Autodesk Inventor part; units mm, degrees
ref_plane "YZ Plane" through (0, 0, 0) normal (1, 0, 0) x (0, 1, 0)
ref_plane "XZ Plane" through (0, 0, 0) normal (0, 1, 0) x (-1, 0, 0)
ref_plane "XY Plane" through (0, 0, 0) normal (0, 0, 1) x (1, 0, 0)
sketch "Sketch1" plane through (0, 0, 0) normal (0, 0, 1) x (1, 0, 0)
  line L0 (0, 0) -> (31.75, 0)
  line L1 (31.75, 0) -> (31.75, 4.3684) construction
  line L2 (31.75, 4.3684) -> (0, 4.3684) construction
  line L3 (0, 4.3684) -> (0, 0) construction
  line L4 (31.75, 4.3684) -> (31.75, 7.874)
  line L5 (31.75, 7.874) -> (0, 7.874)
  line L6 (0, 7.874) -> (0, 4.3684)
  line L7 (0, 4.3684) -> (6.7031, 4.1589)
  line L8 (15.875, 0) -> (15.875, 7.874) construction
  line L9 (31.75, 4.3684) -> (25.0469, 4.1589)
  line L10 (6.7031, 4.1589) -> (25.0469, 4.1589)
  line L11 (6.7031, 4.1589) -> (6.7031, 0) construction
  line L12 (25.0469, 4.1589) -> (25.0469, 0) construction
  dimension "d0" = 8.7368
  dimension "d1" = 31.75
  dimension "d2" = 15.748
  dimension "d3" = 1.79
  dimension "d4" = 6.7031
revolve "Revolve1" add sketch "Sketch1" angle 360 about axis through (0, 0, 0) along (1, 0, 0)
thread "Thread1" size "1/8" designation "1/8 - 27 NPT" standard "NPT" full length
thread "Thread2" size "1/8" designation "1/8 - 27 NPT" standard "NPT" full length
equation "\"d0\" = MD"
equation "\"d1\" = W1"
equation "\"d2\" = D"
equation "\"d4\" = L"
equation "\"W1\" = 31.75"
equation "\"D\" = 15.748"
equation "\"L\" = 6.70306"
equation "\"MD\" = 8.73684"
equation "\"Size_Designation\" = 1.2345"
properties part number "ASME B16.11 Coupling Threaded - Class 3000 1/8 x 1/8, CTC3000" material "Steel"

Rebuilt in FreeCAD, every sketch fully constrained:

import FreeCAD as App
import Part
import Sketcher
Q = App.Units.Quantity

doc = App.newDocument("Part")
body = doc.addObject("PartDesign::Body", "Body")

# Sketch on XY plane
sketch1 = body.newObject("Sketcher::SketchObject", "Sketch")
sketch1.AttachmentSupport = (doc.getObject("XY_Plane"), [""])
sketch1.MapMode = "FlatFace"
sketch1.addGeometry(Part.LineSegment(App.Vector(25, 4.2, 0), App.Vector(31.8, 4.4, 0)), False)
sketch1.addGeometry(Part.LineSegment(App.Vector(31.8, 4.4, 0), App.Vector(31.8, 7.9, 0)), False)
sketch1.addGeometry(Part.LineSegment(App.Vector(31.8, 7.9, 0), App.Vector(0, 7.9, 0)), False)
sketch1.addGeometry(Part.LineSegment(App.Vector(0, 7.9, 0), App.Vector(0, 4.4, 0)), False)
sketch1.addGeometry(Part.LineSegment(App.Vector(0, 4.4, 0), App.Vector(6.7, 4.2, 0)), False)
sketch1.addGeometry(Part.LineSegment(App.Vector(6.7, 4.2, 0), App.Vector(25, 4.2, 0)), False)
sketch1.addConstraint(Sketcher.Constraint("Coincident", 0, 2, 1, 1))
sketch1.addConstraint(Sketcher.Constraint("Coincident", 1, 2, 2, 1))
sketch1.addConstraint(Sketcher.Constraint("Coincident", 2, 2, 3, 1))
sketch1.addConstraint(Sketcher.Constraint("Coincident", 3, 2, 4, 1))
sketch1.addConstraint(Sketcher.Constraint("Coincident", 4, 2, 5, 1))
sketch1.addConstraint(Sketcher.Constraint("Coincident", 5, 2, 0, 1))
sketch1.addConstraint(Sketcher.Constraint("Vertical", 1))
sketch1.addConstraint(Sketcher.Constraint("Horizontal", 2))
sketch1.addConstraint(Sketcher.Constraint("Vertical", 3))
sketch1.addConstraint(Sketcher.Constraint("Horizontal", 5))
sketch1.addConstraint(Sketcher.Constraint("PointOnObject", 2, 2, -2))
sketch1.addConstraint(Sketcher.Constraint("Horizontal", 0, 2, 3, 2))
sketch1.addConstraint(Sketcher.Constraint("Equal", 0, 4))
sketch1.addConstraint(Sketcher.Constraint("DistanceX", 2, 2, 2, 1, Q("1.25 in")))
sketch1.addConstraint(Sketcher.Constraint("Angle", 0, Q("1.7902 deg")))
sketch1.addConstraint(Sketcher.Constraint("DistanceX", -1, 1, 4, 2, Q("0.2639 in")))
sketch1.addConstraint(Sketcher.Constraint("DistanceY", -1, 1, 1, 2, Q("0.31 in")))
sketch1.addConstraint(Sketcher.Constraint("DistanceY", 1, 1, 1, 2, Q("3.5056 mm")))
revolution = body.newObject("PartDesign::Revolution", "Revolution")
revolution.Profile = sketch1
revolution.ReferenceAxis = (sketch1, ["H_Axis"])
revolution.Angle = 360

doc.recompute()
